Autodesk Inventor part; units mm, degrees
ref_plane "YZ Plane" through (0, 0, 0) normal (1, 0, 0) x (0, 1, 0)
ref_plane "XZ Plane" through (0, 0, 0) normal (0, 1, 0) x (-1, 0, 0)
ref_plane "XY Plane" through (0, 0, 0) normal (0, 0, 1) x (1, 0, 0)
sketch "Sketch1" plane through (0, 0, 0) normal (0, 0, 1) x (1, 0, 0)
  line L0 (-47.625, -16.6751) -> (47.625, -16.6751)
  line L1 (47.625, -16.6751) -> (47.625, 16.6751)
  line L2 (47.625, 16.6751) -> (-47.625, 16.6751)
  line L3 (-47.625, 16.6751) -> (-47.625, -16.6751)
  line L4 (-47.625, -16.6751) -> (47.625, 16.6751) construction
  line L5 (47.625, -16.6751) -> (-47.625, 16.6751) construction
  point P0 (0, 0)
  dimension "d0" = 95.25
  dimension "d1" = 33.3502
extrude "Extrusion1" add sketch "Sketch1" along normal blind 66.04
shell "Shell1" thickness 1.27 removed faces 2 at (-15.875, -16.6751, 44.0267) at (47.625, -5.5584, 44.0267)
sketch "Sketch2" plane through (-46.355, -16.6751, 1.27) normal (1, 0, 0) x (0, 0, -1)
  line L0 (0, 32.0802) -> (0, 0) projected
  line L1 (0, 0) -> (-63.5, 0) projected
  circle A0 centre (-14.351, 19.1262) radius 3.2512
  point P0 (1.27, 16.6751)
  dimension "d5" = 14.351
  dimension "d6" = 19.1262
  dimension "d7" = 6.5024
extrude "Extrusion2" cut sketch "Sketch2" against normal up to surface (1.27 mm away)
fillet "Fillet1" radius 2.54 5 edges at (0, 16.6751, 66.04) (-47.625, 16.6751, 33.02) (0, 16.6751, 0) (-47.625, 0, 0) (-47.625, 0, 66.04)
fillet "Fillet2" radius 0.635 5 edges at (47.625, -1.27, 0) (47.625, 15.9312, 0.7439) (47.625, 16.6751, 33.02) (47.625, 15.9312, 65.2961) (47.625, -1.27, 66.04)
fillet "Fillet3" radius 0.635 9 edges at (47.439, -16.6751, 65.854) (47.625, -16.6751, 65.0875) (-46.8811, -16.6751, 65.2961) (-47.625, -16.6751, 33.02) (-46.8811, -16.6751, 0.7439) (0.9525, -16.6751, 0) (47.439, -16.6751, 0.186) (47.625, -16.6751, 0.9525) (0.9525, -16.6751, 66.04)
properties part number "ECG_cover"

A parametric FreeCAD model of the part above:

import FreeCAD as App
import Part
import Sketcher
Q = App.Units.Quantity


def edges_at(feature, points):
    """Names of the edges that pass closest to the given points."""
    edges = feature.Shape.Edges
    near = lambda p: min(range(len(edges)), key=lambda i: edges[i].distToShape(Part.Vertex(*p))[0])
    return sorted({f"Edge{near(p) + 1}" for p in points})


def faces_at(feature, points):
    """Names of the faces that lie closest to the given points."""
    faces = feature.Shape.Faces
    near = lambda p: min(range(len(faces)), key=lambda i: faces[i].distToShape(Part.Vertex(*p))[0])
    return sorted({f"Face{near(p) + 1}" for p in points})

doc = App.newDocument("Part")
params = doc.addObject("Spreadsheet::Sheet", "Params")
for row, (alias, value) in enumerate([
    ("sketch1_width", "3.75 in"),
    ("sketch1_height", "1.313 in"),
    ("pad1_length", "2.6 in"),
    ("thickness_wall", "0.05 in"),
    ("sketch2_diameter", "0.256 in"),
    ("pocket1_length", "0.05 in"),
    ("fillet_radius", "0.1 in"),
    ("fillet2_radius", "0.025 in"),
    ("fillet3_radius", "0.025 in"),
], start=1):
    params.set(f"A{row}", alias)
    params.set(f"B{row}", "=" + value)
    params.setAlias(f"B{row}", alias)

body = doc.addObject("PartDesign::Body", "Body")

sketch1 = body.newObject("Sketcher::SketchObject", "Sketch")
sketch1.AttachmentSupport = (doc.getObject("XY_Plane"), [""])
sketch1.MapMode = "FlatFace"
sketch1.addGeometry([
    Part.LineSegment(App.Vector(-48, 17, 0), App.Vector(-48, -17, 0)),
    Part.LineSegment(App.Vector(-48, -17, 0), App.Vector(48, -17, 0)),
    Part.LineSegment(App.Vector(48, -17, 0), App.Vector(48, 17, 0)),
    Part.LineSegment(App.Vector(48, 17, 0), App.Vector(-48, 17, 0)),
], False)
sketch1.addConstraint([
    Sketcher.Constraint("Coincident", 0, 2, 1, 1),
    Sketcher.Constraint("Coincident", 1, 2, 2, 1),
    Sketcher.Constraint("Coincident", 2, 2, 3, 1),
    Sketcher.Constraint("Coincident", 3, 2, 0, 1),
    Sketcher.Constraint("Vertical", 0),
    Sketcher.Constraint("Horizontal", 1),
    Sketcher.Constraint("Vertical", 2),
    Sketcher.Constraint("Horizontal", 3),
    Sketcher.Constraint("Symmetric", 0, 2, 2, 2, -1, 1),
    Sketcher.Constraint("DistanceX", 1, 1, 1, 2, Q("3.75 in")),
    Sketcher.Constraint("DistanceY", 0, 2, 0, 1, Q("1.313 in")),
])
sketch1.setExpression("Constraints[9]", "Params.sketch1_width")
sketch1.setExpression("Constraints[10]", "Params.sketch1_height")
pad1 = body.newObject("PartDesign::Pad", "Pad")
pad1.Profile = sketch1
pad1.setExpression("Length", "Params.pad1_length")
doc.recompute()

thickness = body.newObject("PartDesign::Thickness", "Thickness")
thickness.Base = (pad1, faces_at(pad1, [(-15.875, -16.675, 44.027), (47.625, -5.558, 44.027)]))
thickness.setExpression("Value", "Params.thickness_wall")
thickness.Reversed = True
thickness.Join = "Intersection"

sketch2 = body.newObject("Sketcher::SketchObject", "Sketch001")
sketch2.AttachmentSupport = (doc.getObject("YZ_Plane"), [""])
sketch2.MapMode = "FlatFace"
sketch2.AttachmentOffset = App.Placement(App.Vector(0, 0, -1.825 * 25.4), App.Rotation())
sketch2.addGeometry(Part.Circle(App.Vector(2.5, 15.6, 0), App.Vector(0, 0, 1), 3.3), False)
sketch2.addConstraint([
    Sketcher.Constraint("Diameter", 0, Q("0.256 in")),
    Sketcher.Constraint("DistanceY", -1, 1, 0, 3, Q("0.615 in")),
    Sketcher.Constraint("DistanceX", -1, 1, 0, 3, Q("0.0965 in")),
])
sketch2.setExpression("Constraints[0]", "Params.sketch2_diameter")
pocket1 = body.newObject("PartDesign::Pocket", "Pocket")
pocket1.Profile = sketch2
pocket1.setExpression("Length", "Params.pocket1_length")
doc.recompute()

fillet = body.newObject("PartDesign::Fillet", "Fillet")
fillet.Base = (pocket1, edges_at(pocket1, [
    (0, 16.675, 66.04),
    (-47.625, 16.675, 33.02),
    (0, 16.675, 0),
    (-47.625, 0, 0),
    (-47.625, 0, 66.04),
]))
fillet.setExpression("Radius", "Params.fillet_radius")
doc.recompute()

fillet2 = body.newObject("PartDesign::Fillet", "Fillet001")
fillet2.Base = (fillet, edges_at(fillet, [
    (47.625, -1.27, 0),
    (47.625, 15.931, 0.744),
    (47.625, 16.675, 33.02),
    (47.625, 15.931, 65.296),
    (47.625, -1.27, 66.04),
]))
fillet2.setExpression("Radius", "Params.fillet2_radius")
doc.recompute()

fillet3 = body.newObject("PartDesign::Fillet", "Fillet002")
fillet3.Base = (fillet2, edges_at(fillet2, [
    (47.439, -16.675, 65.854),
    (47.625, -16.675, 65.088),
    (-46.881, -16.675, 65.296),
    (-47.625, -16.675, 33.02),
    (-46.881, -16.675, 0.744),
    (0.953, -16.675, 0),
    (47.439, -16.675, 0.186),
    (47.625, -16.675, 0.953),
    (0.953, -16.675, 66.04),
]))
fillet3.setExpression("Radius", "Params.fillet3_radius")

doc.recompute()
